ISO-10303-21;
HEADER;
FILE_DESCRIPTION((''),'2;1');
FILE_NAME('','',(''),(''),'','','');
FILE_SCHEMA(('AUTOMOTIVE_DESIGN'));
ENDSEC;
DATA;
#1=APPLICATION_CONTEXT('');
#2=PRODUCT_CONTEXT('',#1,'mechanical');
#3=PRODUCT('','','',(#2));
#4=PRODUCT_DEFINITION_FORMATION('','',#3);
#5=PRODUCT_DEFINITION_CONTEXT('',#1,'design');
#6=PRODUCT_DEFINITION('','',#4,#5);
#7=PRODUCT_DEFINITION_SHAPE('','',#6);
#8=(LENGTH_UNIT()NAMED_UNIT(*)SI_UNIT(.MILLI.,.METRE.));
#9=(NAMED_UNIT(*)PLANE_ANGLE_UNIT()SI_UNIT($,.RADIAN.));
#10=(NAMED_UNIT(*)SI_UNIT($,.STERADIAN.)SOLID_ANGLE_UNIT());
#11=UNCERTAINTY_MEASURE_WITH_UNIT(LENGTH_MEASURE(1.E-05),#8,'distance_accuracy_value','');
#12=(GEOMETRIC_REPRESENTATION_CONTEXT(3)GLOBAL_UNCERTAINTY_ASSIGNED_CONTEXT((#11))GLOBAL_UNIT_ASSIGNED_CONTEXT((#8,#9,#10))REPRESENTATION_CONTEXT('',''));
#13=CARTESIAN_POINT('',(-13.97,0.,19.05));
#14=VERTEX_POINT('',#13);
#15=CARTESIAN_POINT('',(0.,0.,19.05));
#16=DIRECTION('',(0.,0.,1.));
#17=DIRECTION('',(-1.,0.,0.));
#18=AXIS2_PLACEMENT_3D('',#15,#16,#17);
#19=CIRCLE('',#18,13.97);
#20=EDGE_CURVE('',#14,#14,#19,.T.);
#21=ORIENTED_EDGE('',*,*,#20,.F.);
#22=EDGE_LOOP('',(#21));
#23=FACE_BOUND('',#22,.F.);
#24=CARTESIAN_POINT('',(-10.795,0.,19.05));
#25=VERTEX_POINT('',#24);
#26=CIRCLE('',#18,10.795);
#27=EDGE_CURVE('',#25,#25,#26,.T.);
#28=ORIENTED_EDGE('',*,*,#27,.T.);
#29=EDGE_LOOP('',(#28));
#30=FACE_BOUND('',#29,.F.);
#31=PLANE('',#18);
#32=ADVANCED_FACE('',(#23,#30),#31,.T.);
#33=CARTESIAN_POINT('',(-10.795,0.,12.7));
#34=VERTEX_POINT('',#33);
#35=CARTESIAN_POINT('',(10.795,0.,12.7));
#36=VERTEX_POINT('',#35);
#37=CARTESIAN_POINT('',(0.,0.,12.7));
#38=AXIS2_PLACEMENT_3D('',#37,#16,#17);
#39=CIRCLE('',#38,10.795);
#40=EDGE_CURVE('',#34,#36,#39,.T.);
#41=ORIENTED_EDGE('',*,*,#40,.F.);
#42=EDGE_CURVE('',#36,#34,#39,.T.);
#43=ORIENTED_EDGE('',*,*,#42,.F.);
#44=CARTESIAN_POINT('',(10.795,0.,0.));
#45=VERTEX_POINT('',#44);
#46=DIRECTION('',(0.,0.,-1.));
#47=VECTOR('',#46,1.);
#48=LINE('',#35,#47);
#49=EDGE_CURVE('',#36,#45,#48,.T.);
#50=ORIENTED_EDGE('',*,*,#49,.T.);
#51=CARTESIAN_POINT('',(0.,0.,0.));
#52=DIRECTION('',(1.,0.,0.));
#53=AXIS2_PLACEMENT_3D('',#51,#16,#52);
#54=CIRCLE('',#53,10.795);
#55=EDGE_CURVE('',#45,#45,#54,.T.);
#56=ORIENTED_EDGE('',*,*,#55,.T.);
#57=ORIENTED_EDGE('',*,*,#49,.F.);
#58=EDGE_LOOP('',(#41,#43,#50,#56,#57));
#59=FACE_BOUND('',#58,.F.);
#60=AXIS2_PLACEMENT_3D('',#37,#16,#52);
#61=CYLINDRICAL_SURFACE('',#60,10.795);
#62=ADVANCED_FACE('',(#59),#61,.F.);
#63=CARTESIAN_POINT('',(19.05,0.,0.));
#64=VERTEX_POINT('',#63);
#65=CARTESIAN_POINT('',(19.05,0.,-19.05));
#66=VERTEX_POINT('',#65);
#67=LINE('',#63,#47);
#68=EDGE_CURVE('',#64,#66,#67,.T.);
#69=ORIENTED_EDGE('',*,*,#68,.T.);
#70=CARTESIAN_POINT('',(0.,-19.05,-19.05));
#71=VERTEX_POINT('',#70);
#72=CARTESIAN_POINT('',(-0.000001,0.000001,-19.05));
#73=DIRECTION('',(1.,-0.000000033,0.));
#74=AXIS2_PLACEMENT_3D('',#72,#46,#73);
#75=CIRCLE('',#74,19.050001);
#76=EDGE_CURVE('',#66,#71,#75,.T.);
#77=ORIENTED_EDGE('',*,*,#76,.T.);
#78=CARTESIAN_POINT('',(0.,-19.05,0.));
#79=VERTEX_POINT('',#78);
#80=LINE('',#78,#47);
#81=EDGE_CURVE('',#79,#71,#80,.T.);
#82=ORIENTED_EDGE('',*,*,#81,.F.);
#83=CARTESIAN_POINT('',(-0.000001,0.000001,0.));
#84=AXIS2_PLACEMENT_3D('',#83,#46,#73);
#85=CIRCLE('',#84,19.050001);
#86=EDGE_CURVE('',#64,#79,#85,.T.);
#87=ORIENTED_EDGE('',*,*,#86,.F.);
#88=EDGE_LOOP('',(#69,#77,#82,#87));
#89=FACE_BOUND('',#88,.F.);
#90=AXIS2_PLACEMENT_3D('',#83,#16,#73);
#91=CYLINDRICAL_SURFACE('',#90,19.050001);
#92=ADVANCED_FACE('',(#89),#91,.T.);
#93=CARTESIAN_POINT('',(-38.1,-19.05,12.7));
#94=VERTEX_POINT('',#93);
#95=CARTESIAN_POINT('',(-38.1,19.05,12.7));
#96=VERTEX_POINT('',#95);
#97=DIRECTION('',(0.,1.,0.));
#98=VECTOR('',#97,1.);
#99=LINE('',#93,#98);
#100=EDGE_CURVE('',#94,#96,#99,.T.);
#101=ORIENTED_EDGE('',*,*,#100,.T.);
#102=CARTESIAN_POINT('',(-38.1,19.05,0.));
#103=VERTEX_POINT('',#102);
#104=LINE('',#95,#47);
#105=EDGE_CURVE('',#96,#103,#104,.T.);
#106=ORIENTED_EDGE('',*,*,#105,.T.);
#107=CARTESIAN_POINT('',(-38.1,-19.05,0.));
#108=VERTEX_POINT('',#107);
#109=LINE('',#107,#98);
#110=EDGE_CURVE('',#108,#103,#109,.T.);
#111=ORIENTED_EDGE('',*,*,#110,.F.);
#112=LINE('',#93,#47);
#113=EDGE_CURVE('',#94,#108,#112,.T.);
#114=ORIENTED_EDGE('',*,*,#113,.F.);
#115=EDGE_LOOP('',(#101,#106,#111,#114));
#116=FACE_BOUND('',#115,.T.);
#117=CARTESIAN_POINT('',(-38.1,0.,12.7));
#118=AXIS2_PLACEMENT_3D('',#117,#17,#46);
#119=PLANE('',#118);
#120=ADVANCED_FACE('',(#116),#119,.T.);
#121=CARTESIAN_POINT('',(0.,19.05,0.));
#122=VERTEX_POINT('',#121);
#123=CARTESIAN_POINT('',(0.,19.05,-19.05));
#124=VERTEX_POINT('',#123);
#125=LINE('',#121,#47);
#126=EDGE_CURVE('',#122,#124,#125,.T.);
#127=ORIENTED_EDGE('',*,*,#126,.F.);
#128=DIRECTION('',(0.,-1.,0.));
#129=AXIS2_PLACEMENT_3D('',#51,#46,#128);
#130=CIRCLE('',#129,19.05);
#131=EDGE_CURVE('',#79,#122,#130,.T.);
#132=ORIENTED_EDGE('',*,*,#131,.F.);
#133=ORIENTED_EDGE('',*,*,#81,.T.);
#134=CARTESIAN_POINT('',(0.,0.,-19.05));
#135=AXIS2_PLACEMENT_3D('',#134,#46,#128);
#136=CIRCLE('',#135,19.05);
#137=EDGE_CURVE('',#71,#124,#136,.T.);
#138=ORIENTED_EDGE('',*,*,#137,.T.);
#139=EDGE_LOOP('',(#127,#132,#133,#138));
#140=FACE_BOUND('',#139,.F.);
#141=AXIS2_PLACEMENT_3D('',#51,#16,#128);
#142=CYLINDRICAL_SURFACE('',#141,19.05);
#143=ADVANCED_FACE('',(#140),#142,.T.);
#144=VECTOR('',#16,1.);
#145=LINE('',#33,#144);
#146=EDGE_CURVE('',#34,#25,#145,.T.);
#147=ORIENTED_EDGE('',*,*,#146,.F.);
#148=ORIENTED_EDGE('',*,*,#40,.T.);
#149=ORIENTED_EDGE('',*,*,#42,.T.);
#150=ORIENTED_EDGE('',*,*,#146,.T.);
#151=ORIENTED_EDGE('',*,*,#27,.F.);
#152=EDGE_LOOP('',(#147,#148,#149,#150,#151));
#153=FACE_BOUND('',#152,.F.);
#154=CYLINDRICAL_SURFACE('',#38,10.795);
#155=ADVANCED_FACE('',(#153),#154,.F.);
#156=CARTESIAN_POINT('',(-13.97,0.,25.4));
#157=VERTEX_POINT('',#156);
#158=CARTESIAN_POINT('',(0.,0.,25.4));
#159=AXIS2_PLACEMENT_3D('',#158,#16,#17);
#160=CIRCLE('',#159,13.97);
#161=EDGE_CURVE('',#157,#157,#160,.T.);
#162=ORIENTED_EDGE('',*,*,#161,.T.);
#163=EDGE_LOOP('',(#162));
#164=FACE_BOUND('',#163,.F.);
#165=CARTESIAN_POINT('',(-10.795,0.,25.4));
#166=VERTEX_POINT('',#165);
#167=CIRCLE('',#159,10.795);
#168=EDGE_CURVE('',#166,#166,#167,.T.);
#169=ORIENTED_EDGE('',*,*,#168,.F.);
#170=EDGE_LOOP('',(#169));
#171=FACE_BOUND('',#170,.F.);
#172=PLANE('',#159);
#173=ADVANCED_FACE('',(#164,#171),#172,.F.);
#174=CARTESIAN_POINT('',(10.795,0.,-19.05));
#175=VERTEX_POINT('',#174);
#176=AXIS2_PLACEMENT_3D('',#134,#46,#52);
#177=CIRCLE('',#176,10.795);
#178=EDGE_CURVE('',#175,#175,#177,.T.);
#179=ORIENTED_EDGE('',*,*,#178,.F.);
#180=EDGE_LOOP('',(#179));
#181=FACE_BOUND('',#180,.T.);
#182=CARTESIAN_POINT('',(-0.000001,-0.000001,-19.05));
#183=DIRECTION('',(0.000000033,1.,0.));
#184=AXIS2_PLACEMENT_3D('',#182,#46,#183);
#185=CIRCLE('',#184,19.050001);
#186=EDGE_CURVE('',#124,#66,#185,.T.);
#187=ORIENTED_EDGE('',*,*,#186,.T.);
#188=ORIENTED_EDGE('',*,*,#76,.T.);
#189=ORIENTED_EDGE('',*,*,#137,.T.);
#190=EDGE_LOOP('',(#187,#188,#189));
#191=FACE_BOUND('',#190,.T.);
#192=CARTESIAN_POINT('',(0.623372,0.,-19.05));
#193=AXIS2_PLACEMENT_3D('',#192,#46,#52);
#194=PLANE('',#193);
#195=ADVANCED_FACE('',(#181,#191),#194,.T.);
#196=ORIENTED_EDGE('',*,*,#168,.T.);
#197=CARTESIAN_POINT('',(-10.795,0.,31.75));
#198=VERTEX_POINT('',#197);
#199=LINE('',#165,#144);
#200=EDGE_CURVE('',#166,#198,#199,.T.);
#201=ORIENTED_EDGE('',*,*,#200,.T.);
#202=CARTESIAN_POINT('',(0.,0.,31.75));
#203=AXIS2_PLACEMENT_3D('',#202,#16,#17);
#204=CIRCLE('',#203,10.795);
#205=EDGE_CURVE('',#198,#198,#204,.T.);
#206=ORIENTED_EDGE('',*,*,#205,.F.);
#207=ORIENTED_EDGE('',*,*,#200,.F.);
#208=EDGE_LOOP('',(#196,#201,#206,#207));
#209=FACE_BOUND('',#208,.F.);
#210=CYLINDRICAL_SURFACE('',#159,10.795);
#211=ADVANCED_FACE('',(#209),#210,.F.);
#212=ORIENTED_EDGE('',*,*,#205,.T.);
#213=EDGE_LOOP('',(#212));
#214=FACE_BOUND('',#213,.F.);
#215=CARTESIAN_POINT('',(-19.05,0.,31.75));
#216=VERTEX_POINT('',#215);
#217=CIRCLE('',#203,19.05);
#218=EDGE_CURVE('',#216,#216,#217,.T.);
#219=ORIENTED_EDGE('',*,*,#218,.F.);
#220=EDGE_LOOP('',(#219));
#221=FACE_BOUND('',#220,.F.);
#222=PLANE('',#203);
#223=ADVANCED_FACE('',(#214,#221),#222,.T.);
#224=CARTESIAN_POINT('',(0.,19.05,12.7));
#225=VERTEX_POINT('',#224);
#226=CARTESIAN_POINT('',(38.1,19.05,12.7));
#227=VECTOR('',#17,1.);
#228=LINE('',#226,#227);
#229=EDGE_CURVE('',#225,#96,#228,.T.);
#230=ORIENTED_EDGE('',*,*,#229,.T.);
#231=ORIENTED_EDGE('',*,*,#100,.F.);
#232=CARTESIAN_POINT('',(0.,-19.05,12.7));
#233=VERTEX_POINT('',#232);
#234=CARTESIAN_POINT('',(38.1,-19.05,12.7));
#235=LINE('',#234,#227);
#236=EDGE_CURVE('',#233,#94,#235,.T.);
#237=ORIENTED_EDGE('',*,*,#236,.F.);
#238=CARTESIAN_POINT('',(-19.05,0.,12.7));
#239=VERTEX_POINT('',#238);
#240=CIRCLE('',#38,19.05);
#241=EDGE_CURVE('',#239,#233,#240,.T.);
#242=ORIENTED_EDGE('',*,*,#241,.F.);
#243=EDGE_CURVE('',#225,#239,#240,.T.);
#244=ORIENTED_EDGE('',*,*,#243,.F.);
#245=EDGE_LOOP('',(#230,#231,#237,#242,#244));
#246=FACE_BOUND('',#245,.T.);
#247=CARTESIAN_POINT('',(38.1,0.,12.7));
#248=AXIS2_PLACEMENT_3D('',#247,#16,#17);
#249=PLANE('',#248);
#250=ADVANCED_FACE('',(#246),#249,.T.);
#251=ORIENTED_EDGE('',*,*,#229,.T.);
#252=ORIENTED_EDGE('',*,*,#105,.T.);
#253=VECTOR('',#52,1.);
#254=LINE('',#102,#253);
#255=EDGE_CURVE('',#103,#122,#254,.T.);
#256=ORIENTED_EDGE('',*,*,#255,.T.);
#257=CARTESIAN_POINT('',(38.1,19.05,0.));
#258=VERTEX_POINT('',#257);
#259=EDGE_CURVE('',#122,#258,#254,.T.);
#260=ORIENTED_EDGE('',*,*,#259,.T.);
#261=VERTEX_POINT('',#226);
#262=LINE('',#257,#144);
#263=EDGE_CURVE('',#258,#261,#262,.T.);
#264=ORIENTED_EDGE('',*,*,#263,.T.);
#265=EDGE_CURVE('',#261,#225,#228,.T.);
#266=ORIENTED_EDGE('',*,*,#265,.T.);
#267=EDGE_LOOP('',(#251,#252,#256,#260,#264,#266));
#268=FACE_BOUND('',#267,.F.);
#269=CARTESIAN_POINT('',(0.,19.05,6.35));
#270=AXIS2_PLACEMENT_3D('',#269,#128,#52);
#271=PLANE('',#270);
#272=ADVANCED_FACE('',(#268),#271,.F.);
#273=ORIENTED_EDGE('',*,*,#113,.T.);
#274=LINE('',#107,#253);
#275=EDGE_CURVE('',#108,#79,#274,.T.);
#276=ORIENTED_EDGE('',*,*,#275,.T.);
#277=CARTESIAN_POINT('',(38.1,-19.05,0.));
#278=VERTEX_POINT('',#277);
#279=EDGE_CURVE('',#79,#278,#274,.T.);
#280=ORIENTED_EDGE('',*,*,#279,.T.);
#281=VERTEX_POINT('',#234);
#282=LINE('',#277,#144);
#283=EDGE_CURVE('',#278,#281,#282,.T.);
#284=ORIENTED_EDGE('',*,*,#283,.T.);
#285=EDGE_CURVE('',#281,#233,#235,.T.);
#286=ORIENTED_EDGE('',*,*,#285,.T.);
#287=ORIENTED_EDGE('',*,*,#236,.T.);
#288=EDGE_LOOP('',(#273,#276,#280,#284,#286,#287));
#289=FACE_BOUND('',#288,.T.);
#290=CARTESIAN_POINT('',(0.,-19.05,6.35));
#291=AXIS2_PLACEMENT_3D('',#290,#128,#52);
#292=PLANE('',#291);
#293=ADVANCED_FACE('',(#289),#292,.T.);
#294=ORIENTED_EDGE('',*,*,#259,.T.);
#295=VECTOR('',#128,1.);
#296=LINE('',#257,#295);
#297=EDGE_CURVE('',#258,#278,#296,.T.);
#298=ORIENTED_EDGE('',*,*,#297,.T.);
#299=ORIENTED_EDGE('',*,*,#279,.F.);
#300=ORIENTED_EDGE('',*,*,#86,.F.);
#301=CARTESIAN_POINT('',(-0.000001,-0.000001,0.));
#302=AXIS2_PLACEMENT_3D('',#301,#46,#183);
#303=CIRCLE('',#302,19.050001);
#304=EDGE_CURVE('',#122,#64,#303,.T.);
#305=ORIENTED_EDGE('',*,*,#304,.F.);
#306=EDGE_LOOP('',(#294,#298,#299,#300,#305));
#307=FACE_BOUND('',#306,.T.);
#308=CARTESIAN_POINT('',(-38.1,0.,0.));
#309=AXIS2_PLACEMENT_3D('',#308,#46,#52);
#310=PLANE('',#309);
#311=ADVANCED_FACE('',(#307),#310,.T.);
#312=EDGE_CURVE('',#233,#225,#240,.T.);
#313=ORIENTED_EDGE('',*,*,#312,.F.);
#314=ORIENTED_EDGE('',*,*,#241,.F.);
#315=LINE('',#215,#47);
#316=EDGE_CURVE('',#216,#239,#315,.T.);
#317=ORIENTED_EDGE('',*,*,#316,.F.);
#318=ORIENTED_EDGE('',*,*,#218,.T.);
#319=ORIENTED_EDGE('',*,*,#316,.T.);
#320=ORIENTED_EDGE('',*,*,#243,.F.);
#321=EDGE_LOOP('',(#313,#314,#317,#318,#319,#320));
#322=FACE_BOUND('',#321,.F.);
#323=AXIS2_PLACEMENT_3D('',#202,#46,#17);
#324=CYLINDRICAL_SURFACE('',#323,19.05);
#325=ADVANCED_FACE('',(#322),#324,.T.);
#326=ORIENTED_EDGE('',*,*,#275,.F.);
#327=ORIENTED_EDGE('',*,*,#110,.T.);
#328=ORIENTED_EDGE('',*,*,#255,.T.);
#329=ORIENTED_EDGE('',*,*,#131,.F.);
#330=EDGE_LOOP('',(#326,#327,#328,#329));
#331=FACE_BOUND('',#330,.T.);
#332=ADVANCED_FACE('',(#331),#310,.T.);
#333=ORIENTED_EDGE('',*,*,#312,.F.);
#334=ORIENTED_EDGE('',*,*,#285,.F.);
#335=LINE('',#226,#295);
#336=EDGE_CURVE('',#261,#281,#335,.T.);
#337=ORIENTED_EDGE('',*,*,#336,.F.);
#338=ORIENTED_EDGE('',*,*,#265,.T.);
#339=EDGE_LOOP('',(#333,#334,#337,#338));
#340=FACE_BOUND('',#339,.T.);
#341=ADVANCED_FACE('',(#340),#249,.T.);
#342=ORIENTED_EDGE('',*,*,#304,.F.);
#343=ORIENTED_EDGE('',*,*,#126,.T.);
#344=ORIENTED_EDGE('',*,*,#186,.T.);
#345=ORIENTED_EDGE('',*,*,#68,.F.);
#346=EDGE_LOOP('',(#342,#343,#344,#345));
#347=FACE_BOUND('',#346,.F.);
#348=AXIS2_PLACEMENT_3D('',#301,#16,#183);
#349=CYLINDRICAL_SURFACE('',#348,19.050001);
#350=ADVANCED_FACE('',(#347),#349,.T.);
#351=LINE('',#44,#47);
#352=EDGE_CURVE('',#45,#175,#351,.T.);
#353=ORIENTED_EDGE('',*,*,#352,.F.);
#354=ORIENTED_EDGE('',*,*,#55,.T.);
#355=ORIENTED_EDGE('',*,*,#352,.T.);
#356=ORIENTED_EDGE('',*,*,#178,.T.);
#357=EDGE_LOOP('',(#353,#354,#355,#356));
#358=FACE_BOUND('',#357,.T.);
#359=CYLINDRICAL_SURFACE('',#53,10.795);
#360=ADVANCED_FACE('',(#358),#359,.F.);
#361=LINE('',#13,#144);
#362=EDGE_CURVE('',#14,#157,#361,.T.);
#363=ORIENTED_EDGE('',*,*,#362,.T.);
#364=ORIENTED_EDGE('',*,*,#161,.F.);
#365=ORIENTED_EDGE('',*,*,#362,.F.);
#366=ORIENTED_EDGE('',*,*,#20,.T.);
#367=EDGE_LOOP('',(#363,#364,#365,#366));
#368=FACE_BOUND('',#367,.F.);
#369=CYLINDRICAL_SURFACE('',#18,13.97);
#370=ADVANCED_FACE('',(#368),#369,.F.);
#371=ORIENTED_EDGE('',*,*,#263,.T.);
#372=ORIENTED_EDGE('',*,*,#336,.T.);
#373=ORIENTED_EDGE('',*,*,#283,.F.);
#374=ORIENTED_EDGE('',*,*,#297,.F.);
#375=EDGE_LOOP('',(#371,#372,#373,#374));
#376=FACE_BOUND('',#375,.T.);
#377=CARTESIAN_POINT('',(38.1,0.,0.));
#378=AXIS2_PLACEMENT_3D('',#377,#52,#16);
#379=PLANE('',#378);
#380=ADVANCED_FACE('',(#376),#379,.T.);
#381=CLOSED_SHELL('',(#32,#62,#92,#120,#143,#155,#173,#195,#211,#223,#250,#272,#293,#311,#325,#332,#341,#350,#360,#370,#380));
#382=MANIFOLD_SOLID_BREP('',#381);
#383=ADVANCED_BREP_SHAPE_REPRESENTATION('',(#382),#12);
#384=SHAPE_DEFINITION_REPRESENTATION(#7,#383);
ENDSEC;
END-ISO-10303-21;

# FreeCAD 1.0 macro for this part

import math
import FreeCAD as App
import Part
import Sketcher
Q = App.Units.Quantity

doc = App.newDocument("Part")
body = doc.addObject("PartDesign::Body", "Body")

# Sketch on XZ plane
sketch1 = doc.addObject("Sketcher::SketchObject", "Sketch")
body.addObject(sketch1)
sketch1.AttachmentSupport = (doc.XZ_Plane, [""])
sketch1.MapMode = "FlatFace"
sketch1.addGeometry([
    Part.LineSegment(App.Vector(-38, 0, 0), App.Vector(38, 0, 0)),
    Part.LineSegment(App.Vector(38, 0, 0), App.Vector(38, 13, 0)),
    Part.LineSegment(App.Vector(38, 13, 0), App.Vector(-38, 13, 0)),
    Part.LineSegment(App.Vector(-38, 13, 0), App.Vector(-38, 0, 0)),
], False)
sketch1.addConstraint([
    Sketcher.Constraint("Coincident", 0, 2, 1, 1),
    Sketcher.Constraint("Coincident", 1, 2, 2, 1),
    Sketcher.Constraint("Coincident", 2, 2, 3, 1),
    Sketcher.Constraint("Coincident", 3, 2, 0, 1),
    Sketcher.Constraint("Horizontal", 0),
    Sketcher.Constraint("Vertical", 1),
    Sketcher.Constraint("Horizontal", 2),
    Sketcher.Constraint("Vertical", 3),
    Sketcher.Constraint("Symmetric", 0, 2, 3, 2, -1, 1),
    Sketcher.Constraint("DistanceX", 0, 1, 0, 2, Q("3 in")),
    Sketcher.Constraint("DistanceY", 1, 1, 1, 2, Q("0.5 in")),
])
pad1 = doc.addObject("PartDesign::Pad", "Pad")
body.addObject(pad1)
pad1.Profile = sketch1
pad1.Length = Q("1.5 in")
pad1.Midplane = True

# Sketch on XZ plane
sketch2 = doc.addObject("Sketcher::SketchObject", "Sketch001")
body.addObject(sketch2)
sketch2.AttachmentSupport = (doc.XZ_Plane, [""])
sketch2.MapMode = "FlatFace"
sketch2.addGeometry([
    Part.LineSegment(App.Vector(-19.1, 31.8, 0), App.Vector(-19.1, 12.7, 0)),  # 0
    Part.LineSegment(App.Vector(-19.1, 12.7, 0), App.Vector(-10.8, 12.7, 0)),  # 1
    Part.LineSegment(App.Vector(-10.8, 12.7, 0), App.Vector(-10.8, 19.1, 0)),  # 2
    Part.LineSegment(App.Vector(-10.8, 19.1, 0), App.Vector(-14, 19.1, 0)),  # 3
    Part.LineSegment(App.Vector(-14, 19.1, 0), App.Vector(-14, 25.4, 0)),  # 4
    Part.LineSegment(App.Vector(-14, 25.4, 0), App.Vector(-10.8, 25.4, 0)),  # 5
    Part.LineSegment(App.Vector(-10.8, 25.4, 0), App.Vector(-10.8, 31.8, 0)),  # 6
    Part.LineSegment(App.Vector(-10.8, 31.8, 0), App.Vector(-19.1, 31.8, 0)),  # 7
], False)
sketch2.addConstraint([
    Sketcher.Constraint("Coincident", 0, 2, 1, 1),
    Sketcher.Constraint("Coincident", 1, 2, 2, 1),
    Sketcher.Constraint("Coincident", 2, 2, 3, 1),
    Sketcher.Constraint("Coincident", 3, 2, 4, 1),
    Sketcher.Constraint("Coincident", 4, 2, 5, 1),
    Sketcher.Constraint("Coincident", 5, 2, 6, 1),
    Sketcher.Constraint("Coincident", 6, 2, 7, 1),
    Sketcher.Constraint("Coincident", 7, 2, 0, 1),
    Sketcher.Constraint("Vertical", 0),
    Sketcher.Constraint("Horizontal", 1),
    Sketcher.Constraint("Vertical", 2),
    Sketcher.Constraint("Horizontal", 3),
    Sketcher.Constraint("Vertical", 4),
    Sketcher.Constraint("Horizontal", 5),
    Sketcher.Constraint("Vertical", 6),
    Sketcher.Constraint("Horizontal", 7),
    Sketcher.Constraint("Vertical", 2, 2, 5, 2),
    Sketcher.Constraint("Equal", 2, 4),
    Sketcher.Constraint("Equal", 4, 6),
    Sketcher.Constraint("DistanceY", -1, 1, 4, 2, Q("1 in")),
    Sketcher.Constraint("DistanceY", 0, 2, 0, 1, Q("0.75 in")),
    Sketcher.Constraint("DistanceX", 0, 2, 3, 2, Q("0.2 in")),
    Sketcher.Constraint("DistanceX", 1, 1, 1, 2, Q("0.325 in")),
    Sketcher.Constraint("DistanceX", 0, 2, -1, 1, Q("0.75 in")),
])
revolution = doc.addObject("PartDesign::Revolution", "Revolution")
body.addObject(revolution)
revolution.Profile = sketch2
revolution.ReferenceAxis = (sketch2, ["V_Axis"])
revolution.Angle = 360

# Sketch on XY plane
sketch3 = doc.addObject("Sketcher::SketchObject", "Sketch002")
body.addObject(sketch3)
sketch3.AttachmentSupport = (doc.XY_Plane, [""])
sketch3.MapMode = "FlatFace"
sketch3.AttachmentOffset = App.Placement(App.Vector(0, 0, 0.5 * 25.4), App.Rotation())
sketch3.addGeometry(Part.Circle(App.Vector(0, 0, 0), App.Vector(0, 0, 1), 11), False)
sketch3.addConstraint([
    Sketcher.Constraint("Coincident", 0, 3, -1, 1),
    Sketcher.Constraint("Diameter", 0, Q("0.85 in")),
])
pocket1 = doc.addObject("PartDesign::Pocket", "Pocket")
body.addObject(pocket1)
pocket1.Profile = sketch3
pocket1.Length = Q("1 in")

# Sketch on XY plane
sketch4 = doc.addObject("Sketcher::SketchObject", "Sketch003")
body.addObject(sketch4)
sketch4.AttachmentSupport = (doc.XY_Plane, [""])
sketch4.MapMode = "FlatFace"
sketch4.addGeometry([
    Part.ArcOfCircle(Part.Circle(App.Vector(0, 0, 0), App.Vector(0, 0, 1), 19), math.radians(0), math.radians(90)),
    Part.ArcOfCircle(Part.Circle(App.Vector(0, 0, 0), App.Vector(0, 0, 1), 19), math.radians(-90), math.radians(0)),
    Part.ArcOfCircle(Part.Circle(App.Vector(0, 0, 0), App.Vector(0, 0, 1), 19), math.radians(90), math.radians(270)),
    Part.Circle(App.Vector(0, 0, 0), App.Vector(0, 0, 1), 11),
], False)
sketch4.addConstraint([
    Sketcher.Constraint("Tangent", 0, 1, 1, 2),
    Sketcher.Constraint("Tangent", 1, 1, 2, 2),
    Sketcher.Constraint("Tangent", 2, 1, 0, 2),
    Sketcher.Constraint("Coincident", 0, 3, -1, 1),
    Sketcher.Constraint("Coincident", 3, 3, -1, 1),
    Sketcher.Constraint("PointOnObject", 0, 1, -1),
    Sketcher.Constraint("PointOnObject", 1, 1, -2),
    Sketcher.Constraint("PointOnObject", 2, 1, -2),
    Sketcher.Constraint("Diameter", 3, Q("0.85 in")),
    Sketcher.Constraint("Radius", 0, Q("0.75 in")),
])
pad2 = doc.addObject("PartDesign::Pad", "Pad001")
body.addObject(pad2)
pad2.Profile = sketch4
pad2.Length = Q("0.75 in")
pad2.Reversed = True

doc.recompute()
